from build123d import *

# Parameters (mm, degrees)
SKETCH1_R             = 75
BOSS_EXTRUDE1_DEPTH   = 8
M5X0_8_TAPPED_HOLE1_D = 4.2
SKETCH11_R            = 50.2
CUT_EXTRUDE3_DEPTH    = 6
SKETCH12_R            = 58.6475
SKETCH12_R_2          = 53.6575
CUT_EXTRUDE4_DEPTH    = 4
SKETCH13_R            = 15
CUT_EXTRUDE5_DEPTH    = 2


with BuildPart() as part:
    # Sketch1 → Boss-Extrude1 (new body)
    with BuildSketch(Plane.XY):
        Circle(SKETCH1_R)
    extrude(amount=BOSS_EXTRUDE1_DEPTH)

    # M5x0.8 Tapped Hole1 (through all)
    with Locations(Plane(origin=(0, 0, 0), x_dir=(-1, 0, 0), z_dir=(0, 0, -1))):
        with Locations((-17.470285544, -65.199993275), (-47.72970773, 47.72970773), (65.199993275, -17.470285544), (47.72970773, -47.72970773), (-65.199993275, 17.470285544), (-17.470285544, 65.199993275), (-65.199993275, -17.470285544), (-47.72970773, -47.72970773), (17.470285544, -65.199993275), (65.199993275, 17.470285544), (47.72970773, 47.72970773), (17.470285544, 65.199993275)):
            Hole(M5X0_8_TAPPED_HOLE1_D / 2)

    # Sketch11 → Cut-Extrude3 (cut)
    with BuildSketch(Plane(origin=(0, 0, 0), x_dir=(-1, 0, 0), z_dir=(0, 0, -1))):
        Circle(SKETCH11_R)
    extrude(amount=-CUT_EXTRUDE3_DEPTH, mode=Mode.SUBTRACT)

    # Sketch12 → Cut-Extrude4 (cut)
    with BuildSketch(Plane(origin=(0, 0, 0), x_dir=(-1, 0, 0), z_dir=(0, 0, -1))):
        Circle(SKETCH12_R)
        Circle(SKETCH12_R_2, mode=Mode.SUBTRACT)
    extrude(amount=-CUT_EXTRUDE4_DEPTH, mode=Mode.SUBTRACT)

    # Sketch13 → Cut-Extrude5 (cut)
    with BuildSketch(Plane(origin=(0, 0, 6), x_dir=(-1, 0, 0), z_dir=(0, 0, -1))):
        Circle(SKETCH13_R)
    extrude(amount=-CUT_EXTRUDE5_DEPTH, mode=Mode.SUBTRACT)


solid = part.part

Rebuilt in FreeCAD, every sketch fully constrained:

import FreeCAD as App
import Part
import Sketcher
from FreeCAD import Vector
Q = App.Units.Quantity

doc = App.newDocument("Part")
body = doc.addObject("PartDesign::Body", "Body")

# Sketch on XY plane
sketch1 = body.newObject("Sketcher::SketchObject", "Sketch")
sketch1.AttachmentSupport = (doc.getObject("XY_Plane"), [""])
sketch1.MapMode = "FlatFace"
sketch1.addGeometry(Part.Circle(Vector(0, 0, 0), Vector(0, 0, 1), 75), False)
sketch1.addConstraint([
    Sketcher.Constraint("Coincident", 0, 3, -1, 1),
    Sketcher.Constraint("Diameter", 0, Q("150 mm")),
])
pad1 = body.newObject("PartDesign::Pad", "Pad")
pad1.Profile = sketch1
pad1.Length = 8

# Sketch on XY plane
sketch2 = body.newObject("Sketcher::SketchObject", "Sketch001")
sketch2.AttachmentSupport = (doc.getObject("XY_Plane"), [""])
sketch2.MapMode = "FlatFace"
sketch2.addGeometry([
    Part.Circle(Vector(17.470286, -65.199993, 0), Vector(0, 0, 1), 2.1),  # 0
    Part.Circle(Vector(47.729708, 47.729708, 0), Vector(0, 0, 1), 2.1),  # 1
    Part.Circle(Vector(-65.199993, -17.470286, 0), Vector(0, 0, 1), 2.1),  # 2
    Part.Circle(Vector(-47.729708, -47.729708, 0), Vector(0, 0, 1), 2.1),  # 3
    Part.Circle(Vector(65.199993, 17.470286, 0), Vector(0, 0, 1), 2.1),  # 4
    Part.Circle(Vector(17.470286, 65.199993, 0), Vector(0, 0, 1), 2.1),  # 5
    Part.Circle(Vector(65.199993, -17.470286, 0), Vector(0, 0, 1), 2.1),  # 6
    Part.Circle(Vector(47.729708, -47.729708, 0), Vector(0, 0, 1), 2.1),  # 7
    Part.Circle(Vector(-17.470286, -65.199993, 0), Vector(0, 0, 1), 2.1),  # 8
    Part.Circle(Vector(-65.199993, 17.470286, 0), Vector(0, 0, 1), 2.1),  # 9
    Part.Circle(Vector(-47.729708, 47.729708, 0), Vector(0, 0, 1), 2.1),  # 10
    Part.Circle(Vector(-17.470286, 65.199993, 0), Vector(0, 0, 1), 2.1),  # 11
], False)
sketch2.addConstraint([
    Sketcher.Constraint("Equal", 0, 1),
    Sketcher.Constraint("Equal", 1, 2),
    Sketcher.Constraint("Equal", 2, 3),
    Sketcher.Constraint("Equal", 3, 4),
    Sketcher.Constraint("Equal", 4, 5),
    Sketcher.Constraint("Equal", 5, 6),
    Sketcher.Constraint("Equal", 6, 7),
    Sketcher.Constraint("Equal", 7, 8),
    Sketcher.Constraint("Equal", 8, 9),
    Sketcher.Constraint("Equal", 9, 10),
    Sketcher.Constraint("Equal", 10, 11),
    Sketcher.Constraint("Symmetric", 1, 3, 3, 3, -1, 1),
    Sketcher.Constraint("Symmetric", 2, 3, 4, 3, -1, 1),
    Sketcher.Constraint("Symmetric", 5, 3, 8, 3, -1, 1),
    Sketcher.Constraint("Symmetric", 6, 3, 9, 3, -1, 1),
    Sketcher.Constraint("Symmetric", 7, 3, 10, 3, -1, 1),
    Sketcher.Constraint("Symmetric", 0, 3, 11, 3, -1, 1),
    Sketcher.Constraint("Symmetric", 2, 3, 6, 3, -2),
    Sketcher.Constraint("Symmetric", 3, 3, 7, 3, -2),
    Sketcher.Constraint("Symmetric", 0, 3, 8, 3, -2),
    Sketcher.Constraint("Diameter", 0, Q("4.2 mm")),
    Sketcher.Constraint("DistanceY", 0, 3, 1, 3, Q("112.929701 mm")),
    Sketcher.Constraint("DistanceX", 2, 3, 1, 3, Q("112.929701 mm")),
    Sketcher.Constraint("DistanceX", 2, 3, 0, 3, Q("82.670279 mm")),
    Sketcher.Constraint("DistanceY", 0, 3, 4, 3, Q("82.670279 mm")),
    Sketcher.Constraint("DistanceY", 2, 3, 4, 3, Q("34.940571 mm")),
    Sketcher.Constraint("DistanceX", 8, 3, 0, 3, Q("34.940571 mm")),
])
doc.recompute()
hole = body.newObject("PartDesign::Hole", "Hole")
hole.Profile = sketch2
hole.ThreadType = "None"
hole.Diameter = 4.2
hole.DepthType = "ThroughAll"
hole.Reversed = True

# Sketch on XY plane
sketch3 = body.newObject("Sketcher::SketchObject", "Sketch002")
sketch3.AttachmentSupport = (doc.getObject("XY_Plane"), [""])
sketch3.MapMode = "FlatFace"
sketch3.addGeometry(Part.Circle(Vector(0, 0, 0), Vector(0, 0, 1), 50.2), False)
sketch3.addConstraint([
    Sketcher.Constraint("Coincident", 0, 3, -1, 1),
    Sketcher.Constraint("Diameter", 0, Q("100.4 mm")),
])
pocket1 = body.newObject("PartDesign::Pocket", "Pocket")
pocket1.Profile = sketch3
pocket1.Length = 6
pocket1.Reversed = True

# Sketch on XY plane
sketch4 = body.newObject("Sketcher::SketchObject", "Sketch003")
sketch4.AttachmentSupport = (doc.getObject("XY_Plane"), [""])
sketch4.MapMode = "FlatFace"
sketch4.addGeometry([
    Part.Circle(Vector(0, 0, 0), Vector(0, 0, 1), 58.6475),
    Part.Circle(Vector(0, 0, 0), Vector(0, 0, 1), 53.6575),
], False)
sketch4.addConstraint([
    Sketcher.Constraint("Coincident", 0, 3, -1, 1),
    Sketcher.Constraint("Coincident", 1, 3, -1, 1),
    Sketcher.Constraint("Diameter", 0, Q("117.295 mm")),
    Sketcher.Constraint("Diameter", 1, Q("107.315 mm")),
])
pocket2 = body.newObject("PartDesign::Pocket", "Pocket001")
pocket2.Profile = sketch4
pocket2.Length = 4
pocket2.Reversed = True

# Sketch on XY plane
sketch5 = body.newObject("Sketcher::SketchObject", "Sketch004")
sketch5.AttachmentSupport = (doc.getObject("XY_Plane"), [""])
sketch5.MapMode = "FlatFace"
sketch5.AttachmentOffset = App.Placement(Vector(0, 0, 6), App.Rotation())
sketch5.addGeometry(Part.Circle(Vector(0, 0, 0), Vector(0, 0, 1), 15), False)
sketch5.addConstraint([
    Sketcher.Constraint("Coincident", 0, 3, -1, 1),
    Sketcher.Constraint("Diameter", 0, Q("30 mm")),
])
pocket3 = body.newObject("PartDesign::Pocket", "Pocket002")
pocket3.Profile = sketch5
pocket3.Length = 2
pocket3.Reversed = True

doc.recompute()
